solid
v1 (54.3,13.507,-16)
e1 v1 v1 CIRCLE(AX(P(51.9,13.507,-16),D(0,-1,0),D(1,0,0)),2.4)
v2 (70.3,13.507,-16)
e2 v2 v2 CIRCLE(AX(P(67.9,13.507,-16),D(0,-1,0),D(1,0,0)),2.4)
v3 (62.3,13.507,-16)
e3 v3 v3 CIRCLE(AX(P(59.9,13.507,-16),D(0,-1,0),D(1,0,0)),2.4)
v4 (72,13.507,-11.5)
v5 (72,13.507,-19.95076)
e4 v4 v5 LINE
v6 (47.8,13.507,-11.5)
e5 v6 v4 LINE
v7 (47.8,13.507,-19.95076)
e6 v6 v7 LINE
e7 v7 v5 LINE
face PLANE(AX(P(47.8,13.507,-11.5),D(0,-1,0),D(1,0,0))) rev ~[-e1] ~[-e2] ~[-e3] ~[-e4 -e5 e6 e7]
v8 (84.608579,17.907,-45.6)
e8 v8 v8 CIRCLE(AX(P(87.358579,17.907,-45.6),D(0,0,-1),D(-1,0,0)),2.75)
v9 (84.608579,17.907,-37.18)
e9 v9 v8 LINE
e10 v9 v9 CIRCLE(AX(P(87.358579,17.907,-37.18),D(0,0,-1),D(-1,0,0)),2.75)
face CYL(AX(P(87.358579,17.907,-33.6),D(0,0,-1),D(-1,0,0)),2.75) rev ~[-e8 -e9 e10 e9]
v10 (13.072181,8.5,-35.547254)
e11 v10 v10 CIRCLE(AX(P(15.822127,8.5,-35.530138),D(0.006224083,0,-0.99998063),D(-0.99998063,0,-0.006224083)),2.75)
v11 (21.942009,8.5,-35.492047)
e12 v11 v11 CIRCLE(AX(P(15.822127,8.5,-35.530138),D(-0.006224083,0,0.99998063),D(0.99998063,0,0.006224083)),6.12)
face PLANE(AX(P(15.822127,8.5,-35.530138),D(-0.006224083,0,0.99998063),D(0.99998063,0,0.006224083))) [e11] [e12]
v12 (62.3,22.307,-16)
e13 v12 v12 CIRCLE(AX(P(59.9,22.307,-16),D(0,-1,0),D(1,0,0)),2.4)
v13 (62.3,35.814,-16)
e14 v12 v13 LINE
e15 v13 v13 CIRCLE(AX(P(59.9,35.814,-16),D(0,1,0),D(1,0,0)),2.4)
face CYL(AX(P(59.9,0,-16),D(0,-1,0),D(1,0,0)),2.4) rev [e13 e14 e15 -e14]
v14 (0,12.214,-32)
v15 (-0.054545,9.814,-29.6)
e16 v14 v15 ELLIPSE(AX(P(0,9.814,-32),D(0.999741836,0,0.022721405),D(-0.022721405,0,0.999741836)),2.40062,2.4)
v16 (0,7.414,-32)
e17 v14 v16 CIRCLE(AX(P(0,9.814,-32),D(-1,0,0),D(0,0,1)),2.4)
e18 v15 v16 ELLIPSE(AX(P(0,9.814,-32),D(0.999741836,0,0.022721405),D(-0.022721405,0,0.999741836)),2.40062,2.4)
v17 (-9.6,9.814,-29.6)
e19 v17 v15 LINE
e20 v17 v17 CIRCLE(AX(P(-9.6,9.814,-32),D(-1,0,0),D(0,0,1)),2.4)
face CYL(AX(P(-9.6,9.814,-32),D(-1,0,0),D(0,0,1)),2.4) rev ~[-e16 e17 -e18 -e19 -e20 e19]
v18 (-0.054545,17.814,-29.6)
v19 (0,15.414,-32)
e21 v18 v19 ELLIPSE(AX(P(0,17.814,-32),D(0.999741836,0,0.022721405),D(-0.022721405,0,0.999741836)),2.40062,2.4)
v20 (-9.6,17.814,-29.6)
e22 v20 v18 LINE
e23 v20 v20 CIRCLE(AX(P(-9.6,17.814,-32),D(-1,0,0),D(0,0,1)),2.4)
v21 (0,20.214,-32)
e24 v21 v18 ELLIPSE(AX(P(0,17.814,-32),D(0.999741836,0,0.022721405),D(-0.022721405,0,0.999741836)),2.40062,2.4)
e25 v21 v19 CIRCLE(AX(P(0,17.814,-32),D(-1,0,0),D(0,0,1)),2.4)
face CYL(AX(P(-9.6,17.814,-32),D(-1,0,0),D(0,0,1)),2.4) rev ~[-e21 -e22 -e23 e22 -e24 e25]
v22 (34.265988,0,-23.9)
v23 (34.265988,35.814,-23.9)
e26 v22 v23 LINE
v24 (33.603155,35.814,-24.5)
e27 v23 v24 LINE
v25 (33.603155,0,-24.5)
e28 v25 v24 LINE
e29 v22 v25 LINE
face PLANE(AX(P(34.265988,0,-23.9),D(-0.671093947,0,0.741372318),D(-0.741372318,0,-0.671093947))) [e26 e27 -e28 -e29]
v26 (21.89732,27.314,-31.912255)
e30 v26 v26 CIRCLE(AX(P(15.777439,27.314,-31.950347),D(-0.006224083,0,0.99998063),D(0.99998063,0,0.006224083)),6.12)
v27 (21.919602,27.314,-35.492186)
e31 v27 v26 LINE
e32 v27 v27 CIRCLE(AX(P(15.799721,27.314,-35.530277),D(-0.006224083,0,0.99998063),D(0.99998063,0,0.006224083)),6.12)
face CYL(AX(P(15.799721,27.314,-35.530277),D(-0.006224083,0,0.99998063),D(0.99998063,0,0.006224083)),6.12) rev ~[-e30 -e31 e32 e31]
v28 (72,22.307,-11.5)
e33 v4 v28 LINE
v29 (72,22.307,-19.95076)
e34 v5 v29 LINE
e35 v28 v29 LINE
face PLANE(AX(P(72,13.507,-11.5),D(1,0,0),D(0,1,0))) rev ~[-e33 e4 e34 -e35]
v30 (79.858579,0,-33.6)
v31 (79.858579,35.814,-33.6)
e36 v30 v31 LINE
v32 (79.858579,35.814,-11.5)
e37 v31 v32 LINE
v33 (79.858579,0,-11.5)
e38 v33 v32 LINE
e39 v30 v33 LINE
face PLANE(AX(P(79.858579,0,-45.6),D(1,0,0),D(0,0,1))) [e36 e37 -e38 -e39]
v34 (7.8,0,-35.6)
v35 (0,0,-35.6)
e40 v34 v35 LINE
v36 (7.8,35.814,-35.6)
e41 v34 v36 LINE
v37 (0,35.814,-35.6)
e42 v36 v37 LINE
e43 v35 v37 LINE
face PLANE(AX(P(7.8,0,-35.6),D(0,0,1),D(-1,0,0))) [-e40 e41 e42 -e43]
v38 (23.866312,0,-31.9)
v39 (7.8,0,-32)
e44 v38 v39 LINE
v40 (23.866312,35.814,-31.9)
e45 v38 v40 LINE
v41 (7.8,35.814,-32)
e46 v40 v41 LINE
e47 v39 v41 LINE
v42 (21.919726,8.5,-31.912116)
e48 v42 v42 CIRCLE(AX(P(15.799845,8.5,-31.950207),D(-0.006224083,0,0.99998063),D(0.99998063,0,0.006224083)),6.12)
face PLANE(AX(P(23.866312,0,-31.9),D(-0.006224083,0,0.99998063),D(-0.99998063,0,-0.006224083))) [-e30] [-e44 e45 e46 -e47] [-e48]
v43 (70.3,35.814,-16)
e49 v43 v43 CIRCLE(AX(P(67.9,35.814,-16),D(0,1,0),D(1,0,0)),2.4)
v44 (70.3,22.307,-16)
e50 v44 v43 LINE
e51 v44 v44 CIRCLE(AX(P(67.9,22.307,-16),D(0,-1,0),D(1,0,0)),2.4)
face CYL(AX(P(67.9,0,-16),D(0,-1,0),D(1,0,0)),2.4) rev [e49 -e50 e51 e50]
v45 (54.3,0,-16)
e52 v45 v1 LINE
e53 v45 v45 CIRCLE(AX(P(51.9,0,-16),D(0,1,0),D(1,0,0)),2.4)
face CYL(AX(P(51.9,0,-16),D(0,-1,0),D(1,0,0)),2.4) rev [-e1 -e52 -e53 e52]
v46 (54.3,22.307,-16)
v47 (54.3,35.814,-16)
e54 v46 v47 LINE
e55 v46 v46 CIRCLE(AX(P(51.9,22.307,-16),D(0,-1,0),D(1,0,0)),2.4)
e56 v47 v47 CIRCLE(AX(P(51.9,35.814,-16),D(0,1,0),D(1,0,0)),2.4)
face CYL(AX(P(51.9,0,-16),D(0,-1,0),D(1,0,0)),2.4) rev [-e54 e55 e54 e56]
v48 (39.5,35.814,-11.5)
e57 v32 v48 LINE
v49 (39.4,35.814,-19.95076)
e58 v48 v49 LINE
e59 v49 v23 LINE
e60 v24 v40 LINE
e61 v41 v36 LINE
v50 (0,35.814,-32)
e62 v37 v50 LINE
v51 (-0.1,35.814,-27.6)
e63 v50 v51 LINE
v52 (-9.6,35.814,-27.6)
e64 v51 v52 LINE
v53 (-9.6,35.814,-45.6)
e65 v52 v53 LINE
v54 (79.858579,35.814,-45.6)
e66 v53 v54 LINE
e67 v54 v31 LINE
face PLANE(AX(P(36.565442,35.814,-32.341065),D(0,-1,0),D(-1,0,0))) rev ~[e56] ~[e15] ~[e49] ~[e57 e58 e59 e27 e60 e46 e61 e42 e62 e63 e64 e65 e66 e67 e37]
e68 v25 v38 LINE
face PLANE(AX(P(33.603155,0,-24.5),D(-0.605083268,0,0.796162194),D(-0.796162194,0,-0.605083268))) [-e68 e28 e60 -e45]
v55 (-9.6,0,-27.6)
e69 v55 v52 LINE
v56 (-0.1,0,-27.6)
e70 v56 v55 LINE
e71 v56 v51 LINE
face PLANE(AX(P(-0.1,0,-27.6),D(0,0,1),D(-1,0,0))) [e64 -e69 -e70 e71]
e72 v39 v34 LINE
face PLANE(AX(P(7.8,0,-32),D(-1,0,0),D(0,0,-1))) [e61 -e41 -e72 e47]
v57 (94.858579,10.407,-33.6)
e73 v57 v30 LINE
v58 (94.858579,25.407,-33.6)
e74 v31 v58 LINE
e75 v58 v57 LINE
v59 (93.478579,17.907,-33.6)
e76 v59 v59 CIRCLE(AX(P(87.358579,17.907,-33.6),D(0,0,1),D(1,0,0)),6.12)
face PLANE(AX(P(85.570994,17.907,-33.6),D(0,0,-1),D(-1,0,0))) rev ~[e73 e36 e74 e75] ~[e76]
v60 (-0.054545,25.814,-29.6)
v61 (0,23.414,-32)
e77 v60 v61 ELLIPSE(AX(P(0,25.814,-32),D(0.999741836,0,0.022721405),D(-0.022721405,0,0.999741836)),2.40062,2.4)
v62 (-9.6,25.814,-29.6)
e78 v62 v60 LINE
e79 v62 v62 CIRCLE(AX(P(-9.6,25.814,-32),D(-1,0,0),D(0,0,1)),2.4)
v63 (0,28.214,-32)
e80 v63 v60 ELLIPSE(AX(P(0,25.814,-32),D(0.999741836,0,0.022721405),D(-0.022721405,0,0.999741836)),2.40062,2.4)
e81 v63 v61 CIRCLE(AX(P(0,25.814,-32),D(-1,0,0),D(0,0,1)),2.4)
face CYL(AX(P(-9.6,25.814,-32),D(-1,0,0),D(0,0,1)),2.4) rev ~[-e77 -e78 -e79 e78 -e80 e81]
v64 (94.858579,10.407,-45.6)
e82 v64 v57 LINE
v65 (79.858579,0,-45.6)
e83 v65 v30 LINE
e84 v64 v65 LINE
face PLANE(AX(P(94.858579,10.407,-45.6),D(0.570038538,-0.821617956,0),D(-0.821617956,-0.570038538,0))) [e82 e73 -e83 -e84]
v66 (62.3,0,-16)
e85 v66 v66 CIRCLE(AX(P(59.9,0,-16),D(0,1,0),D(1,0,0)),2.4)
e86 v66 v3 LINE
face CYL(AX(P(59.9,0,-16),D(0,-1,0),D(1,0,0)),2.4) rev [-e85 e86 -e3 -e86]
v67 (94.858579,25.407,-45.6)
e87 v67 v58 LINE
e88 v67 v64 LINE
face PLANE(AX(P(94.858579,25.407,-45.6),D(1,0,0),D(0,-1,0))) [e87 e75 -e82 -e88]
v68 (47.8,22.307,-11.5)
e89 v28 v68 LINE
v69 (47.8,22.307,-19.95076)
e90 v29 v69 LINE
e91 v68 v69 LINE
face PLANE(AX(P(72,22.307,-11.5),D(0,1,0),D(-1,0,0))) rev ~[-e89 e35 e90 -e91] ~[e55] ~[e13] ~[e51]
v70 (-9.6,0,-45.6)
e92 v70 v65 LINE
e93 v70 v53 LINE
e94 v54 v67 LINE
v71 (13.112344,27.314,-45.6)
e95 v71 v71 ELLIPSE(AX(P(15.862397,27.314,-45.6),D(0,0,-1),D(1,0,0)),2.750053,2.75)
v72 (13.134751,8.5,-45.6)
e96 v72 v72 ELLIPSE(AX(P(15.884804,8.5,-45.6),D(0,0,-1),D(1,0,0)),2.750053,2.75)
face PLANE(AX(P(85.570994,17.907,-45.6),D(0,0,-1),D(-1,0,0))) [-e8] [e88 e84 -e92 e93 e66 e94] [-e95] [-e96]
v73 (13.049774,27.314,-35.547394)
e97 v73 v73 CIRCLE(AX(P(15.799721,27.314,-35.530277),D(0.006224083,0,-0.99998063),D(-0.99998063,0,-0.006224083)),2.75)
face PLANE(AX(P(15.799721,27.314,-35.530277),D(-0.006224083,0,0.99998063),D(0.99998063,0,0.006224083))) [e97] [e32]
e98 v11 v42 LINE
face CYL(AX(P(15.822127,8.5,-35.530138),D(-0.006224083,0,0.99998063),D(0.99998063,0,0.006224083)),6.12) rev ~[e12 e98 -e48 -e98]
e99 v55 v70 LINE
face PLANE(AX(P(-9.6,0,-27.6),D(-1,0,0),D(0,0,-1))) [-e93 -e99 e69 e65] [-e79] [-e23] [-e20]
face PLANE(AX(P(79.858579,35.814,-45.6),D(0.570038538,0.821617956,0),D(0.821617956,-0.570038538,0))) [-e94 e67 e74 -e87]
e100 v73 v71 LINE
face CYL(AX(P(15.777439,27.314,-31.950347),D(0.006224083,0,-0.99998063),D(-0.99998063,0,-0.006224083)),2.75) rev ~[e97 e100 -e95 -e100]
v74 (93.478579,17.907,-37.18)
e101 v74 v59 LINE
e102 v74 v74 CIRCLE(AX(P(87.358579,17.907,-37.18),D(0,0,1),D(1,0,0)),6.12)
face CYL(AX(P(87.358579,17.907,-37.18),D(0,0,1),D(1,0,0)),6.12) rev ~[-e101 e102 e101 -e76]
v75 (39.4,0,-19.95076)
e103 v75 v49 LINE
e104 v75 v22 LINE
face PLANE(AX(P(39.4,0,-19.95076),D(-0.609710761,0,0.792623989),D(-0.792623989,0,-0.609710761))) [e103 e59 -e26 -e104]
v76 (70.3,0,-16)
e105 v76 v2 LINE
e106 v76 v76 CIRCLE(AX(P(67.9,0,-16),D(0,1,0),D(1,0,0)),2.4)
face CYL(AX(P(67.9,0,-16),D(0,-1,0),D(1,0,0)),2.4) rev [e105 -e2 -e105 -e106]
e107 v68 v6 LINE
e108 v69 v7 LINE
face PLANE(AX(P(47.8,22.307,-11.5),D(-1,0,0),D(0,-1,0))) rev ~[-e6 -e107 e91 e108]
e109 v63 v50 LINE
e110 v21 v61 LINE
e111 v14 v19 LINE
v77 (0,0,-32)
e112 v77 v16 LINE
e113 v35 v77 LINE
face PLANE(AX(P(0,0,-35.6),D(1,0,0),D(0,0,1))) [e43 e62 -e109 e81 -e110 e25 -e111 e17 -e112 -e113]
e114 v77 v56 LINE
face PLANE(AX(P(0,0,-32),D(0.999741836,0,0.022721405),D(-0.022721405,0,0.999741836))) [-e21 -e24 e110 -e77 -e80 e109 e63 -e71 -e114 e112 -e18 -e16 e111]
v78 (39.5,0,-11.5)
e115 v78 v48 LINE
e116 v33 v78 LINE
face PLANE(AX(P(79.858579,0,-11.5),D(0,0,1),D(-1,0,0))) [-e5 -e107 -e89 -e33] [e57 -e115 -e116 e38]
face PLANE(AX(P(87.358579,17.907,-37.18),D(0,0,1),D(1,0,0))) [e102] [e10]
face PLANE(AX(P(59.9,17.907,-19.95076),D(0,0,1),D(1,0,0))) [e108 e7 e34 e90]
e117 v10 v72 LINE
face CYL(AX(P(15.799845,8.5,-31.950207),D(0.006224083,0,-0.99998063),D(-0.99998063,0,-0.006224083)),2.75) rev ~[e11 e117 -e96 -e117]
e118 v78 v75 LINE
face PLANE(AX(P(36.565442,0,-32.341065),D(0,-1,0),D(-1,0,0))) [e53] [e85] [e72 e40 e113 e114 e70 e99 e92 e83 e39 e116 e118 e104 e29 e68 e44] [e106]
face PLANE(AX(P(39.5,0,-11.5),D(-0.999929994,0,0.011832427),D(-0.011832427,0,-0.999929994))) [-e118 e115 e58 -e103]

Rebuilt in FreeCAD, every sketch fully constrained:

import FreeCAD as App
import Part
import Sketcher

doc = App.newDocument("Part")
body = doc.addObject("PartDesign::Body", "Body")

sketch1 = body.newObject("Sketcher::SketchObject", "Sketch")
sketch1.AttachmentSupport = (doc.getObject("XZ_Plane"), [""])
sketch1.MapMode = "FlatFace"
sketch1.addGeometry([
    Part.LineSegment(App.Vector(79.858579, -11.5, 0), App.Vector(79.858579, -45.6, 0)),
    Part.LineSegment(App.Vector(79.858579, -45.6, 0), App.Vector(-9.6, -45.6, 0)),
    Part.LineSegment(App.Vector(-9.6, -45.6, 0), App.Vector(-9.6, -27.6, 0)),
    Part.LineSegment(App.Vector(-9.6, -27.6, 0), App.Vector(-0.1, -27.6, 0)),
    Part.LineSegment(App.Vector(-0.1, -27.6, 0), App.Vector(0, -32, 0)),
    Part.LineSegment(App.Vector(0, -32, 0), App.Vector(0, -35.6, 0)),
    Part.LineSegment(App.Vector(0, -35.6, 0), App.Vector(7.8, -35.6, 0)),
    Part.LineSegment(App.Vector(7.8, -35.6, 0), App.Vector(7.8, -32, 0)),
    Part.LineSegment(App.Vector(7.8, -32, 0), App.Vector(23.866312, -31.9, 0)),
    Part.LineSegment(App.Vector(23.866312, -31.9, 0), App.Vector(33.603155, -24.5, 0)),
    Part.LineSegment(App.Vector(33.603155, -24.5, 0), App.Vector(34.265988, -23.9, 0)),
    Part.LineSegment(App.Vector(34.265988, -23.9, 0), App.Vector(39.4, -19.95076, 0)),
    Part.LineSegment(App.Vector(39.4, -19.95076, 0), App.Vector(39.5, -11.5, 0)),
    Part.LineSegment(App.Vector(39.5, -11.5, 0), App.Vector(79.858579, -11.5, 0)),
    Part.Circle(App.Vector(67.9, -16, 0), App.Vector(0, 0, 1), 2.4),
    Part.Circle(App.Vector(59.9, -16, 0), App.Vector(0, 0, 1), 2.4),
    Part.Circle(App.Vector(51.9, -16, 0), App.Vector(0, 0, 1), 2.4),
], False)
sketch1.addConstraint([
    Sketcher.Constraint("Coincident", 0, 2, 1, 1),
    Sketcher.Constraint("Coincident", 1, 2, 2, 1),
    Sketcher.Constraint("Coincident", 2, 2, 3, 1),
    Sketcher.Constraint("Coincident", 3, 2, 4, 1),
    Sketcher.Constraint("Coincident", 4, 2, 5, 1),
    Sketcher.Constraint("Coincident", 5, 2, 6, 1),
    Sketcher.Constraint("Coincident", 6, 2, 7, 1),
    Sketcher.Constraint("Coincident", 7, 2, 8, 1),
    Sketcher.Constraint("Coincident", 8, 2, 9, 1),
    Sketcher.Constraint("Coincident", 9, 2, 10, 1),
    Sketcher.Constraint("Coincident", 10, 2, 11, 1),
    Sketcher.Constraint("Coincident", 11, 2, 12, 1),
    Sketcher.Constraint("Coincident", 12, 2, 13, 1),
    Sketcher.Constraint("Coincident", 13, 2, 0, 1),
    Sketcher.Constraint("Vertical", 0),
    Sketcher.Constraint("Horizontal", 1),
    Sketcher.Constraint("Vertical", 2),
    Sketcher.Constraint("Horizontal", 3),
    Sketcher.Constraint("Vertical", 5),
    Sketcher.Constraint("Horizontal", 6),
    Sketcher.Constraint("Vertical", 7),
    Sketcher.Constraint("Horizontal", 13),
    Sketcher.Constraint("Equal", 14, 15),
    Sketcher.Constraint("Equal", 15, 16),
    Sketcher.Constraint("PointOnObject", 4, 2, -2),
    Sketcher.Constraint("Horizontal", 14, 3, 15, 3),
    Sketcher.Constraint("Horizontal", 15, 3, 16, 3),
    Sketcher.Constraint("Horizontal", 4, 2, 7, 2),
    Sketcher.Constraint("Diameter", 14, 4.8),
    Sketcher.Constraint("DistanceY", 2, 1, 2, 2, 18.0),
    Sketcher.Constraint("DistanceX", 3, 1, 3, 2, 9.5),
    Sketcher.Constraint("DistanceX", 6, 1, 6, 2, 7.8),
    Sketcher.Constraint("DistanceY", 0, 2, 0, 1, 34.1),
    Sketcher.Constraint("DistanceY", 5, 2, 5, 1, 3.6),
    Sketcher.Constraint("DistanceY", 14, 3, -1, 1, 16.0),
    Sketcher.Constraint("DistanceY", 4, 2, -1, 1, 32.0),
    Sketcher.Constraint("DistanceX", 15, 3, 14, 3, 8.0),
    Sketcher.Constraint("DistanceX", 16, 3, 15, 3, 8.0),
    Sketcher.Constraint("DistanceX", 3, 2, 16, 3, 52.0),
    Sketcher.Constraint("DistanceY", 5, 2, 3, 2, 8.0),
    Sketcher.Constraint("DistanceY", 8, 2, 10, 2, 8.0),
    Sketcher.Constraint("DistanceY", 9, 2, 12, 2, 13.0),
    Sketcher.Constraint("DistanceX", -1, 1, 14, 3, 67.9),
    Sketcher.Constraint("DistanceY", 8, 2, -1, 1, 31.9),
    Sketcher.Constraint("DistanceX", -1, 1, 11, 2, 39.4),
    Sketcher.Constraint("DistanceX", -1, 1, 12, 2, 39.5),
    Sketcher.Constraint("DistanceX", 1, 2, 1, 1, 89.458579),
    Sketcher.Constraint("Distance", 9, 12.229722),
    Sketcher.Constraint("Distance", 12, 8.451351),
    Sketcher.Constraint("Distance", 8, 16.066624),
    Sketcher.Constraint("Distance", 10, 0.894063),
])
pad1 = body.newObject("PartDesign::Pad", "Pad")
pad1.Profile = sketch1
pad1.Length = 35.814
pad1.Reversed = True

sketch2 = body.newObject("Sketcher::SketchObject", "Sketch001")
sketch2.AttachmentSupport = (doc.getObject("XY_Plane"), [""])
sketch2.MapMode = "FlatFace"
sketch2.AttachmentOffset = App.Placement(App.Vector(0, 0, -11.5), App.Rotation())
sketch2.addGeometry([
    Part.LineSegment(App.Vector(47.8, 22.307, 0), App.Vector(47.8, 13.507, 0)),
    Part.LineSegment(App.Vector(47.8, 13.507, 0), App.Vector(72, 13.507, 0)),
    Part.LineSegment(App.Vector(72, 13.507, 0), App.Vector(72, 22.307, 0)),
    Part.LineSegment(App.Vector(72, 22.307, 0), App.Vector(47.8, 22.307, 0)),
], False)
sketch2.addConstraint([
    Sketcher.Constraint("Coincident", 0, 2, 1, 1),
    Sketcher.Constraint("Coincident", 1, 2, 2, 1),
    Sketcher.Constraint("Coincident", 2, 2, 3, 1),
    Sketcher.Constraint("Coincident", 3, 2, 0, 1),
    Sketcher.Constraint("Vertical", 0),
    Sketcher.Constraint("Horizontal", 1),
    Sketcher.Constraint("Vertical", 2),
    Sketcher.Constraint("Horizontal", 3),
    Sketcher.Constraint("DistanceX", 1, 1, 1, 2, 24.2),
    Sketcher.Constraint("DistanceY", 0, 2, 0, 1, 8.8),
    Sketcher.Constraint("DistanceX", -1, 1, 1, 2, 72.0),
    Sketcher.Constraint("DistanceY", -1, 1, 0, 2, 13.507),
])
pocket1 = body.newObject("PartDesign::Pocket", "Pocket")
pocket1.Profile = sketch2
pocket1.Length = 8.45076

sketch3 = body.newObject("Sketcher::SketchObject", "Sketch002")
sketch3.Placement = App.Placement(App.Vector(0.199469, 0, -32.047307), App.Rotation(App.Vector(0.99998063, 0, 0.006224083), App.Vector(0, 1, 0), App.Vector(-0.006224083, 0, 0.99998063), "ZXY"))
sketch3.addGeometry([
    Part.Circle(App.Vector(15.578272, 27.314, 0), App.Vector(0, 0, 1), 2.75),
    Part.Circle(App.Vector(15.600678, 8.5, 0), App.Vector(0, 0, 1), 2.75),
], False)
sketch3.addConstraint([
    Sketcher.Constraint("Equal", 0, 1),
    Sketcher.Constraint("Diameter", 0, 5.5),
    Sketcher.Constraint("DistanceY", -1, 1, 1, 3, 8.5),
    Sketcher.Constraint("DistanceY", -1, 1, 0, 3, 27.314),
    Sketcher.Constraint("DistanceX", -1, 1, 0, 3, 15.578272),
    Sketcher.Constraint("DistanceX", -1, 1, 1, 3, 15.600678),
])
doc.recompute()
hole = body.newObject("PartDesign::Hole", "Hole")
hole.Profile = sketch3
hole.ThreadType = "None"
hole.Diameter = 5.5
hole.DepthType = "ThroughAll"
hole.HoleCutType = "Counterbore"
hole.HoleCutDiameter = 12.24
hole.HoleCutDepth = 3.58

sketch4 = body.newObject("Sketcher::SketchObject", "Sketch003")
sketch4.AttachmentSupport = (doc.getObject("XY_Plane"), [""])
sketch4.MapMode = "FlatFace"
sketch4.AttachmentOffset = App.Placement(App.Vector(0, 0, -45.6), App.Rotation())
sketch4.addGeometry([
    Part.LineSegment(App.Vector(79.858579, 35.814, 0), App.Vector(94.858579, 25.407, 0)),
    Part.LineSegment(App.Vector(94.858579, 25.407, 0), App.Vector(94.858579, 10.407, 0)),
    Part.LineSegment(App.Vector(94.858579, 10.407, 0), App.Vector(79.858579, 0, 0)),
    Part.LineSegment(App.Vector(79.858579, 0, 0), App.Vector(79.858579, 35.814, 0)),
], False)
sketch4.addConstraint([
    Sketcher.Constraint("Coincident", 0, 2, 1, 1),
    Sketcher.Constraint("Coincident", 1, 2, 2, 1),
    Sketcher.Constraint("Coincident", 2, 2, 3, 1),
    Sketcher.Constraint("Coincident", 3, 2, 0, 1),
    Sketcher.Constraint("Vertical", 1),
    Sketcher.Constraint("Vertical", 3),
    Sketcher.Constraint("PointOnObject", 2, 2, -1),
    Sketcher.Constraint("Equal", 0, 2),
    Sketcher.Constraint("DistanceY", 1, 2, 1, 1, 15.0),
    Sketcher.Constraint("DistanceX", 2, 2, 1, 2, 15.0),
    Sketcher.Constraint("DistanceY", 3, 1, 3, 2, 35.814),
    Sketcher.Constraint("DistanceX", -1, 1, 0, 2, 94.858579),
])
pad2 = body.newObject("PartDesign::Pad", "Pad001")
pad2.Profile = sketch4
pad2.Length = 12

sketch5 = body.newObject("Sketcher::SketchObject", "Sketch004")
sketch5.AttachmentSupport = (doc.getObject("XY_Plane"), [""])
sketch5.MapMode = "FlatFace"
sketch5.AttachmentOffset = App.Placement(App.Vector(0, 0, -33.6), App.Rotation())
sketch5.addGeometry(Part.Circle(App.Vector(87.358579, 17.907, 0), App.Vector(0, 0, 1), 2.75), False)
sketch5.addConstraint([
    Sketcher.Constraint("Diameter", 0, 5.5),
    Sketcher.Constraint("DistanceY", -1, 1, 0, 3, 17.907),
    Sketcher.Constraint("DistanceX", -1, 1, 0, 3, 87.358579),
])
doc.recompute()
hole2 = body.newObject("PartDesign::Hole", "Hole001")
hole2.Profile = sketch5
hole2.ThreadType = "None"
hole2.Diameter = 5.5
hole2.DepthType = "Dimension"
hole2.Depth = 12
hole2.DrillPoint = "Flat"
hole2.HoleCutType = "Counterbore"
hole2.HoleCutDiameter = 12.24
hole2.HoleCutDepth = 3.58

sketch6 = body.newObject("Sketcher::SketchObject", "Sketch005")
sketch6.AttachmentSupport = (doc.getObject("YZ_Plane"), [""])
sketch6.MapMode = "FlatFace"
sketch6.AttachmentOffset = App.Placement(App.Vector(0, 0, -9.6), App.Rotation())
sketch6.addGeometry(Part.Circle(App.Vector(25.814, -32, 0), App.Vector(0, 0, 1), 2.4), False)
sketch6.addConstraint([
    Sketcher.Constraint("Diameter", 0, 4.8),
    Sketcher.Constraint("DistanceY", 0, 3, -1, 1, 32.0),
    Sketcher.Constraint("DistanceX", -1, 1, 0, 3, 25.814),
])
pocket2 = body.newObject("PartDesign::Pocket", "Pocket001")
pocket2.Profile = sketch6
pocket2.Type = "UpToFirst"
pocket2.Reversed = True

sketch7 = body.newObject("Sketcher::SketchObject", "Sketch006")
sketch7.AttachmentSupport = (doc.getObject("YZ_Plane"), [""])
sketch7.MapMode = "FlatFace"
sketch7.AttachmentOffset = App.Placement(App.Vector(0, 0, -9.6), App.Rotation())
sketch7.addGeometry(Part.Circle(App.Vector(17.814, -32, 0), App.Vector(0, 0, 1), 2.4), False)
sketch7.addConstraint([
    Sketcher.Constraint("Diameter", 0, 4.8),
    Sketcher.Constraint("DistanceY", 0, 3, -1, 1, 32.0),
    Sketcher.Constraint("DistanceX", -1, 1, 0, 3, 17.814),
])
pocket3 = body.newObject("PartDesign::Pocket", "Pocket002")
pocket3.Profile = sketch7
pocket3.Type = "UpToFirst"
pocket3.Reversed = True

sketch8 = body.newObject("Sketcher::SketchObject", "Sketch007")
sketch8.AttachmentSupport = (doc.getObject("YZ_Plane"), [""])
sketch8.MapMode = "FlatFace"
sketch8.AttachmentOffset = App.Placement(App.Vector(0, 0, -9.6), App.Rotation())
sketch8.addGeometry(Part.Circle(App.Vector(9.814, -32, 0), App.Vector(0, 0, 1), 2.4), False)
sketch8.addConstraint([
    Sketcher.Constraint("Diameter", 0, 4.8),
    Sketcher.Constraint("DistanceY", 0, 3, -1, 1, 32.0),
    Sketcher.Constraint("DistanceX", -1, 1, 0, 3, 9.814),
])
pocket4 = body.newObject("PartDesign::Pocket", "Pocket003")
pocket4.Profile = sketch8
pocket4.Type = "UpToFirst"
pocket4.Reversed = True

doc.recompute()
